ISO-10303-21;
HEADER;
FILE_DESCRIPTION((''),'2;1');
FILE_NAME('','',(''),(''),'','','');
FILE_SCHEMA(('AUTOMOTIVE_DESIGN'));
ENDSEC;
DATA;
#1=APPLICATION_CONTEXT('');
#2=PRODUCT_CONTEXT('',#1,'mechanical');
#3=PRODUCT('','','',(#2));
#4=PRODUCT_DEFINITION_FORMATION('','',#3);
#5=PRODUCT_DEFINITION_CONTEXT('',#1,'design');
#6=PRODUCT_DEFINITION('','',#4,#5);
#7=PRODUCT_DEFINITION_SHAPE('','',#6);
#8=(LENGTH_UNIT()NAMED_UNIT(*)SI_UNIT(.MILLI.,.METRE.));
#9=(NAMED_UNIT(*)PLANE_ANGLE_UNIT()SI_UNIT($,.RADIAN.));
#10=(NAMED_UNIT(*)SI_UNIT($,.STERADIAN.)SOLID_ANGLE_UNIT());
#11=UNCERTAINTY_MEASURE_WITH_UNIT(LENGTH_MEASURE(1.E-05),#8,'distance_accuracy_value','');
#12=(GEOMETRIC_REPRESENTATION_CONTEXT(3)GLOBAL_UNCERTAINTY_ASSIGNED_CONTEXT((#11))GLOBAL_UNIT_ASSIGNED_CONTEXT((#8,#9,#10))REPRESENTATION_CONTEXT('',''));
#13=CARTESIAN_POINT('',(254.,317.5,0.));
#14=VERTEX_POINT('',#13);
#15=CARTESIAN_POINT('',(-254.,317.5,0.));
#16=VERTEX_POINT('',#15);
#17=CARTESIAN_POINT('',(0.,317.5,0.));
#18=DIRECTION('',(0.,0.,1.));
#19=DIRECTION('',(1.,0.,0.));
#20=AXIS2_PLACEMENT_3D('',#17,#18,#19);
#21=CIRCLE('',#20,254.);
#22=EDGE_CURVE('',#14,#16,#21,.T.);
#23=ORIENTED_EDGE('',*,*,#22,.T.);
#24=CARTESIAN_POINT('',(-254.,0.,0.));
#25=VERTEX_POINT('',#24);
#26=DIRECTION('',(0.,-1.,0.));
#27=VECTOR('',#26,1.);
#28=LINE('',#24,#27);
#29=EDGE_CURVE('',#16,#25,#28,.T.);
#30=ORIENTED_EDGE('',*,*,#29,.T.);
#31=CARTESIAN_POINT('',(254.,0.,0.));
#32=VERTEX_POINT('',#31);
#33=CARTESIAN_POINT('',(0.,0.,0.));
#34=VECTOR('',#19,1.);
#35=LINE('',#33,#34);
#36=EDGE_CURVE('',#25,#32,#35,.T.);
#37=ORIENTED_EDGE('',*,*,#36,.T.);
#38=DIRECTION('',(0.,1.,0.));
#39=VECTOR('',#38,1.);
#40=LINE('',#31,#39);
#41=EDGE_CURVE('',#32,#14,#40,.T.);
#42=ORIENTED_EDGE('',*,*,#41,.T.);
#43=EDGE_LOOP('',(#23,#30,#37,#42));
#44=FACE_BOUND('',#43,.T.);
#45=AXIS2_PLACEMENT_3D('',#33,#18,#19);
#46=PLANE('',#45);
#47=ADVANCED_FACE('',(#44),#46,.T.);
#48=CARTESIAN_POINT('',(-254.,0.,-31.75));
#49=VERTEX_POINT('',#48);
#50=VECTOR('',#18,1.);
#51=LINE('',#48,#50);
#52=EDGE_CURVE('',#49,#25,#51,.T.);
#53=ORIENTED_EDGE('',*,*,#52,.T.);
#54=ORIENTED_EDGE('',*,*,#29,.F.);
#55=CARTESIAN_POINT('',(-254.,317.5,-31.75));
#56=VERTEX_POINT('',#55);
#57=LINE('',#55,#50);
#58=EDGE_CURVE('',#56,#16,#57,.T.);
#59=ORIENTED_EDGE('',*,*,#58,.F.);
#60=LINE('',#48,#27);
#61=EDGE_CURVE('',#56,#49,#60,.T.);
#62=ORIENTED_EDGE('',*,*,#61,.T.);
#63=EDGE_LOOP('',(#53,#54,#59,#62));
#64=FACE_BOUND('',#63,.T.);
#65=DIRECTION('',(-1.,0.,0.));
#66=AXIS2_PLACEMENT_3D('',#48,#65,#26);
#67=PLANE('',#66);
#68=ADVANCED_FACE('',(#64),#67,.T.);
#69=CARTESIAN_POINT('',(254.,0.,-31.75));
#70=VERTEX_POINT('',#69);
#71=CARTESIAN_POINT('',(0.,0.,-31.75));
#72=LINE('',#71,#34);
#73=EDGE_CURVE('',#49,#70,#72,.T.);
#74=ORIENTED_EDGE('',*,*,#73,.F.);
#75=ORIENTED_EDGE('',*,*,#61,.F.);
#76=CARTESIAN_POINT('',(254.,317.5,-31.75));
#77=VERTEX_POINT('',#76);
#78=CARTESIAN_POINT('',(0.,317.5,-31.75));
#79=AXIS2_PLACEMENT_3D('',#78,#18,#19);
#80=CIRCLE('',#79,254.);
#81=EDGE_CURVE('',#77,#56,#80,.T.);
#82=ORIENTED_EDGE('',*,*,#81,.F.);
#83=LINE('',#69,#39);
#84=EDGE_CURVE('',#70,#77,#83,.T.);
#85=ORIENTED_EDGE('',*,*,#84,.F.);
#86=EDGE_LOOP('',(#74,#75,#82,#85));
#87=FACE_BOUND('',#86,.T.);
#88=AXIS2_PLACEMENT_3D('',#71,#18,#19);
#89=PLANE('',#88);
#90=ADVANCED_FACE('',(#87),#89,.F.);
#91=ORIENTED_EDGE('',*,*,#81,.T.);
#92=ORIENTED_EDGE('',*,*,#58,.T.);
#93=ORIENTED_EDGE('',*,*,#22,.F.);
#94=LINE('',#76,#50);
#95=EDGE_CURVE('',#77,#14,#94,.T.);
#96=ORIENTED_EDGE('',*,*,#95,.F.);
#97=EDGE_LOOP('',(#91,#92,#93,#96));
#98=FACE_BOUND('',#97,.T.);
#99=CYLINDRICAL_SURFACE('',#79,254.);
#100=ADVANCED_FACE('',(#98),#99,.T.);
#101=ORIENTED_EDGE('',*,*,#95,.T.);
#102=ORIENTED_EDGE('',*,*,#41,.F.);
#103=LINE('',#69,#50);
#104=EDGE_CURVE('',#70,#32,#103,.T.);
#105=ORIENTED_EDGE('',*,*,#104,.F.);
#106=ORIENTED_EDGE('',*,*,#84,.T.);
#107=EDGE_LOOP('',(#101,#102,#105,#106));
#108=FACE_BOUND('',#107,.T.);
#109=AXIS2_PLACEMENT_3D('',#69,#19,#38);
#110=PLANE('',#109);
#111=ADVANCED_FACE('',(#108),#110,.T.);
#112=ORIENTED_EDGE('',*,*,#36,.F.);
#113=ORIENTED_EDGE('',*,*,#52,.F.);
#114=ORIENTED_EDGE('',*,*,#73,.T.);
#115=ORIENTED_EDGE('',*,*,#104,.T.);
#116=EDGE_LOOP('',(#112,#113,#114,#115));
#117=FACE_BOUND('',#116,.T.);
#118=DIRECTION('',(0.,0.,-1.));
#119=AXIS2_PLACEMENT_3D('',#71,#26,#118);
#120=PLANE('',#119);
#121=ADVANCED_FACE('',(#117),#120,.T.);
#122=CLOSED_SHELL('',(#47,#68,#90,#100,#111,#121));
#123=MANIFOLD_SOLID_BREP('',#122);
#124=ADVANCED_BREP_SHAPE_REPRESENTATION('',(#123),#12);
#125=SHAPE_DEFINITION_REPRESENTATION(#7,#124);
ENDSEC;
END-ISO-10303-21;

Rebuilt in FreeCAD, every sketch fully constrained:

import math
import FreeCAD as App
import Part
import Sketcher

V = App.Vector
Q = App.Units.Quantity

doc = App.newDocument("Part")
body = doc.addObject("PartDesign::Body", "Body")

# Sketch on XY plane
sketch1 = doc.addObject("Sketcher::SketchObject", "Sketch")
body.addObject(sketch1)
sketch1.AttachmentSupport = (doc.XY_Plane, [""])
sketch1.MapMode = "FlatFace"
sketch1.addGeometry(Part.LineSegment(V(-254, 0, 0), V(254, 0, 0)), False)
sketch1.addGeometry(Part.LineSegment(V(254, 0, 0), V(254, 318, 0)), False)
sketch1.addGeometry(Part.ArcOfCircle(Part.Circle(V(0, 318, 0), V(0, 0, 1), 254), math.radians(0), math.radians(180)), False)
sketch1.addGeometry(Part.LineSegment(V(-254, 318, 0), V(-254, 0, 0)), False)
sketch1.addConstraint(Sketcher.Constraint("Coincident", 0, 2, 1, 1))
sketch1.addConstraint(Sketcher.Constraint("Tangent", 1, 2, 2, 1))
sketch1.addConstraint(Sketcher.Constraint("Tangent", 2, 2, 3, 1))
sketch1.addConstraint(Sketcher.Constraint("Coincident", 3, 2, 0, 1))
sketch1.addConstraint(Sketcher.Constraint("Horizontal", 0))
sketch1.addConstraint(Sketcher.Constraint("Vertical", 1))
sketch1.addConstraint(Sketcher.Constraint("Vertical", 3))
sketch1.addConstraint(Sketcher.Constraint("Symmetric", 0, 2, 3, 2, -1, 1))
sketch1.addConstraint(Sketcher.Constraint("Radius", 2, Q("10 in")))
sketch1.addConstraint(Sketcher.Constraint("DistanceY", 1, 1, 1, 2, Q("12.5 in")))
pad1 = doc.addObject("PartDesign::Pad", "Pad")
body.addObject(pad1)
pad1.Profile = sketch1
pad1.Length = Q("1.25 in")
pad1.Reversed = True

doc.recompute()
